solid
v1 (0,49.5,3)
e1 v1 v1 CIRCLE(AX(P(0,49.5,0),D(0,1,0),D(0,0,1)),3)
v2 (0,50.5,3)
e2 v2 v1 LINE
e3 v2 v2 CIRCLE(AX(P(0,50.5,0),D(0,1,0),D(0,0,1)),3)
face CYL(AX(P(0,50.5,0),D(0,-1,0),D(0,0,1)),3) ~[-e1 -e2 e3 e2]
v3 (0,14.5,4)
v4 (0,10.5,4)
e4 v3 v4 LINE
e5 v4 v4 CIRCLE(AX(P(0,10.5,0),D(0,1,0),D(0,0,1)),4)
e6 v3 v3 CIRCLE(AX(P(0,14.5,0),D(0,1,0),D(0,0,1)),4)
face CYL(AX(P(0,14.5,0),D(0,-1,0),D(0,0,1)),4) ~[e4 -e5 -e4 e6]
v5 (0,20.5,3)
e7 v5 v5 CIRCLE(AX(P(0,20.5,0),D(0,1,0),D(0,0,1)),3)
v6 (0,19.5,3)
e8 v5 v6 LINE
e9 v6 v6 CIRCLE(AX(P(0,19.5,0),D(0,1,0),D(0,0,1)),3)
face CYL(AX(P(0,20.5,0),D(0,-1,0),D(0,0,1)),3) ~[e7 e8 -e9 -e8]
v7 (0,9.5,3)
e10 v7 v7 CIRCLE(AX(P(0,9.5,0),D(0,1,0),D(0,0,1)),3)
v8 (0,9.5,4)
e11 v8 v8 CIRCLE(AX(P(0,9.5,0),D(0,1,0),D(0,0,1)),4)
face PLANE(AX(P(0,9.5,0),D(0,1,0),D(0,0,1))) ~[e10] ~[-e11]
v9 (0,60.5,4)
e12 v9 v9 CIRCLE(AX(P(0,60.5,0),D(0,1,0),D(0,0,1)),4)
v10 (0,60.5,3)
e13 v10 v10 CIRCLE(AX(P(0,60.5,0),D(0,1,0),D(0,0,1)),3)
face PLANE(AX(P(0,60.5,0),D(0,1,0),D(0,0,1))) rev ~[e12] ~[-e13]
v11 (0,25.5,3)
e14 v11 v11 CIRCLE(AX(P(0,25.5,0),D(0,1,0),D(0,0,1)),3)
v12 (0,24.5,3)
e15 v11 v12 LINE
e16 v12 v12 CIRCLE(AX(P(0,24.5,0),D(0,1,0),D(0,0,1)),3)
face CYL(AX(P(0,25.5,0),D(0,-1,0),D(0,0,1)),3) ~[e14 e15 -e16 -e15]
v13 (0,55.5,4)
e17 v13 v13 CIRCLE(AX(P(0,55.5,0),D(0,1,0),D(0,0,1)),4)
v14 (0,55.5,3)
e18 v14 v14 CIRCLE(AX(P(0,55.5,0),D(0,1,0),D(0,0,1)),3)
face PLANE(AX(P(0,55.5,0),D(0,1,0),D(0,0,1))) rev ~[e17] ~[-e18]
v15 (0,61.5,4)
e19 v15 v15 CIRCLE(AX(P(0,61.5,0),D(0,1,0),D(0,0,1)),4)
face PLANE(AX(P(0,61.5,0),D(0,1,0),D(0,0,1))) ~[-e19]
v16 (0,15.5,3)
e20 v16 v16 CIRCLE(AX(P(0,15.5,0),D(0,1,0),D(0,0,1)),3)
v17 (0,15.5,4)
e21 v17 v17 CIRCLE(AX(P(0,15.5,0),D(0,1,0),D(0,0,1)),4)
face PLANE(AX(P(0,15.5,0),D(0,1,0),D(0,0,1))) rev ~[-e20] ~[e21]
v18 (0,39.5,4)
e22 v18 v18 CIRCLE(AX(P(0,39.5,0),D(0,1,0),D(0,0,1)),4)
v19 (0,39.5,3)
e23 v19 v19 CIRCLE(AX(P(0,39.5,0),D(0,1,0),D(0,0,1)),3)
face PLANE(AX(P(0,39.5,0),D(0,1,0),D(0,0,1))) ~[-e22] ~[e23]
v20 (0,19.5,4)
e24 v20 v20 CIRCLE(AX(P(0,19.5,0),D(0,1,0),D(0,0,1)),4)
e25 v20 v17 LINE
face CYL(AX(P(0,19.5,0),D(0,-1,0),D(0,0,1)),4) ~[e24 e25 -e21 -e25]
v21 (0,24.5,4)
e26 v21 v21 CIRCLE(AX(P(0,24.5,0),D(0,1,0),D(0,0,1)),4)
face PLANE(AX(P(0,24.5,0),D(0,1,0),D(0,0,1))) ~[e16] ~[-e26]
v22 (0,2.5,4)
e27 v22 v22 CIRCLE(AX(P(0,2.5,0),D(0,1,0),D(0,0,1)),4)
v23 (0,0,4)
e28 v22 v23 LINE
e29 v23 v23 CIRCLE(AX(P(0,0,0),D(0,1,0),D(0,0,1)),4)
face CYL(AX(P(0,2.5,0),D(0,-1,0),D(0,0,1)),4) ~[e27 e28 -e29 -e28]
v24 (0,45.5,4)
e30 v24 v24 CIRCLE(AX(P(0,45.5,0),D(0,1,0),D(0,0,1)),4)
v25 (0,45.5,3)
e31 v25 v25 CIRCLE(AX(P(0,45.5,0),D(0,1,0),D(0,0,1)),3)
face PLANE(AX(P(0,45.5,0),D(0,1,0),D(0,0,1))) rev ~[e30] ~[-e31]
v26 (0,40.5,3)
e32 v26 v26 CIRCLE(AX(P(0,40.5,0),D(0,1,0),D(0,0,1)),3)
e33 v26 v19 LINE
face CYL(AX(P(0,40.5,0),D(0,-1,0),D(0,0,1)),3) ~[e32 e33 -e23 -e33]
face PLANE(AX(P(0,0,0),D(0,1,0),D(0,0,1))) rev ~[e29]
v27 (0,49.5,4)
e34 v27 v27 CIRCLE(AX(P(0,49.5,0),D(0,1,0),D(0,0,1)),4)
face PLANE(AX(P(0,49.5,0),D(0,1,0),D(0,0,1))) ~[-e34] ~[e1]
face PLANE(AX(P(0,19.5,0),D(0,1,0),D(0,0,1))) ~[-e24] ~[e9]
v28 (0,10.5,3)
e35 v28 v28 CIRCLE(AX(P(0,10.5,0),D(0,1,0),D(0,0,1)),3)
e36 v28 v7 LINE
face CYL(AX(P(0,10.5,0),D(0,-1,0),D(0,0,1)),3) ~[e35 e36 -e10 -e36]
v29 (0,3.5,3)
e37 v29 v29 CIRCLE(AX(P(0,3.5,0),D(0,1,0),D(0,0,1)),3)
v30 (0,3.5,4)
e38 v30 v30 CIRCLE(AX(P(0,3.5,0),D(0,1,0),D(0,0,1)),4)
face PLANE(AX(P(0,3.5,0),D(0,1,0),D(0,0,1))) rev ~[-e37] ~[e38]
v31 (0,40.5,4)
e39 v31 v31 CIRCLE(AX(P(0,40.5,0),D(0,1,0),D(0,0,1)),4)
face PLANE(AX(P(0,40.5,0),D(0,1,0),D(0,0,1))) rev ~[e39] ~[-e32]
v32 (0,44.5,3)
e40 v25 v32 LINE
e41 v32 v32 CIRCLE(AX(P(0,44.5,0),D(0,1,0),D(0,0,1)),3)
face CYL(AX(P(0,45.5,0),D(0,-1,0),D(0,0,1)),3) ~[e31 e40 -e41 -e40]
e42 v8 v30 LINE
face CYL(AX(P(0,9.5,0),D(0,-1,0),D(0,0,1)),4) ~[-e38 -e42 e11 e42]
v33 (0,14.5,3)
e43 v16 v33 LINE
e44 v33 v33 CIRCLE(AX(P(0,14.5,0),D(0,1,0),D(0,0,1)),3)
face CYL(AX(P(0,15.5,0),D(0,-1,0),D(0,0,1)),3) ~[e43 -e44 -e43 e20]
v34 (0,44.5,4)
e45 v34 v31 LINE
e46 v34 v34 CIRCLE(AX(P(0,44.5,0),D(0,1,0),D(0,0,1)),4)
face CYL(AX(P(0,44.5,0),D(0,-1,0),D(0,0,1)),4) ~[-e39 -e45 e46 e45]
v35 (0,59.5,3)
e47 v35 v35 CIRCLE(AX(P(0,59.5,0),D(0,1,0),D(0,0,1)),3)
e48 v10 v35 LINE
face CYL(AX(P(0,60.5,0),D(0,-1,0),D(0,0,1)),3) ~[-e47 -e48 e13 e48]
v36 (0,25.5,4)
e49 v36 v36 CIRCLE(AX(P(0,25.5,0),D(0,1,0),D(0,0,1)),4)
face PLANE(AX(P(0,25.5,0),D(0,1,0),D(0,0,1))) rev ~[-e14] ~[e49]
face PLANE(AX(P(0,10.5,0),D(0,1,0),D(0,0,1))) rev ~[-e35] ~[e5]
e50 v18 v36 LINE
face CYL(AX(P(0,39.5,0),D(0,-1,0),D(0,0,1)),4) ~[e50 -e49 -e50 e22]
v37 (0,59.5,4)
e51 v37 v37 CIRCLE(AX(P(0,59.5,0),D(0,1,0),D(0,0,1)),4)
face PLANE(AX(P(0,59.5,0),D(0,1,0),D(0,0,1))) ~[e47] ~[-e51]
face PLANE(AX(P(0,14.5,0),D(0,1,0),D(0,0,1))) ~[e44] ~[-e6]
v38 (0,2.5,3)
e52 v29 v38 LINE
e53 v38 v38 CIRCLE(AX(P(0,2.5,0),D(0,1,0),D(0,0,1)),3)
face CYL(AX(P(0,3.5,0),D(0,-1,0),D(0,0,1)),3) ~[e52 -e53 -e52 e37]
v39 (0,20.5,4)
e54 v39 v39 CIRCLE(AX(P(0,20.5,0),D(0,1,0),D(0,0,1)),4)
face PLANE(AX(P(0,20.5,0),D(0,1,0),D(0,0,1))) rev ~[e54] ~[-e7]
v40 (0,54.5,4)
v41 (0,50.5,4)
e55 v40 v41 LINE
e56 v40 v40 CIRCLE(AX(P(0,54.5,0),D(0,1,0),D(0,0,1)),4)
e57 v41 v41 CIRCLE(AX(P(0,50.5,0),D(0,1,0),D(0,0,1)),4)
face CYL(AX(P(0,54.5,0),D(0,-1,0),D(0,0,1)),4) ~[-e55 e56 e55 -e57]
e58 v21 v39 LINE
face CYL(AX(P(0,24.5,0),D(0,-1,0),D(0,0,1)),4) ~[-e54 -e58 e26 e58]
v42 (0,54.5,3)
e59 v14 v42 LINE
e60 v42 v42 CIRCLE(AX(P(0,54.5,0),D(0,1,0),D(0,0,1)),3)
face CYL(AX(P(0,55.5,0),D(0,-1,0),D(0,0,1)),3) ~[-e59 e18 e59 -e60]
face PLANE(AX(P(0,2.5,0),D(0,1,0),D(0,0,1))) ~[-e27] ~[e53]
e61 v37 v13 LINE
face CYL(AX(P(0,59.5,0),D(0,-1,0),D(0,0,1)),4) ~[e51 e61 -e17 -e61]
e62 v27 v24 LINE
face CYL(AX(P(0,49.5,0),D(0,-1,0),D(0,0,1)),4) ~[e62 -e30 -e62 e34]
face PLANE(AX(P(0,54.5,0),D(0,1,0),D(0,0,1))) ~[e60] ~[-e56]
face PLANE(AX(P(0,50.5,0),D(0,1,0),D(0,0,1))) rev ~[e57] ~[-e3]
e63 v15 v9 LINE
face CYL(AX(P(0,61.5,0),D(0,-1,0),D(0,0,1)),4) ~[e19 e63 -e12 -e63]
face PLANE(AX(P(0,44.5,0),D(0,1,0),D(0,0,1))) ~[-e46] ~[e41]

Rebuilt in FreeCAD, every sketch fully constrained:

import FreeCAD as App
import Part
import Sketcher

doc = App.newDocument("Part")
params = doc.addObject("Spreadsheet::Sheet", "Params")
for row, (alias, value) in enumerate([
    ("sketch1_width", "1 mm"),
    ("sketch1_width2", "4 mm"),
    ("sketch1_width3", "14 mm"),
    ("sketch1_width4", "6 mm"),
    ("sketch1_width5", "61.5 mm"),
    ("revolution_angle", "360 deg"),
], start=1):
    params.set(f"A{row}", alias)
    params.set(f"B{row}", "=" + value)
    params.setAlias(f"B{row}", alias)

body = doc.addObject("PartDesign::Body", "Body")

sketch1 = doc.addObject("Sketcher::SketchObject", "Sketch")
body.addObject(sketch1)
sketch1.AttachmentSupport = (doc.YZ_Plane, [""])
sketch1.MapMode = "FlatFace"
sketch1.addGeometry(Part.LineSegment(App.Vector(0, 4, 0), App.Vector(0, 0, 0)), False)
sketch1.addGeometry(Part.LineSegment(App.Vector(0, 0, 0), App.Vector(61.5, 0, 0)), False)
sketch1.addGeometry(Part.LineSegment(App.Vector(61.5, 0, 0), App.Vector(61.5, 4, 0)), False)
sketch1.addGeometry(Part.LineSegment(App.Vector(61.5, 4, 0), App.Vector(60.5, 4, 0)), False)
sketch1.addGeometry(Part.LineSegment(App.Vector(60.5, 4, 0), App.Vector(60.5, 3, 0)), False)
sketch1.addGeometry(Part.LineSegment(App.Vector(60.5, 3, 0), App.Vector(59.5, 3, 0)), False)
sketch1.addGeometry(Part.LineSegment(App.Vector(59.5, 3, 0), App.Vector(59.5, 4, 0)), False)
sketch1.addGeometry(Part.LineSegment(App.Vector(59.5, 4, 0), App.Vector(55.5, 4, 0)), False)
sketch1.addGeometry(Part.LineSegment(App.Vector(55.5, 4, 0), App.Vector(55.5, 3, 0)), False)
sketch1.addGeometry(Part.LineSegment(App.Vector(55.5, 3, 0), App.Vector(54.5, 3, 0)), False)
sketch1.addGeometry(Part.LineSegment(App.Vector(54.5, 3, 0), App.Vector(54.5, 4, 0)), False)
sketch1.addGeometry(Part.LineSegment(App.Vector(54.5, 4, 0), App.Vector(50.5, 4, 0)), False)
sketch1.addGeometry(Part.LineSegment(App.Vector(50.5, 4, 0), App.Vector(50.5, 3, 0)), False)
sketch1.addGeometry(Part.LineSegment(App.Vector(50.5, 3, 0), App.Vector(49.5, 3, 0)), False)
sketch1.addGeometry(Part.LineSegment(App.Vector(49.5, 3, 0), App.Vector(49.5, 4, 0)), False)
sketch1.addGeometry(Part.LineSegment(App.Vector(49.5, 4, 0), App.Vector(45.5, 4, 0)), False)
sketch1.addGeometry(Part.LineSegment(App.Vector(45.5, 4, 0), App.Vector(45.5, 3, 0)), False)
sketch1.addGeometry(Part.LineSegment(App.Vector(45.5, 3, 0), App.Vector(44.5, 3, 0)), False)
sketch1.addGeometry(Part.LineSegment(App.Vector(44.5, 3, 0), App.Vector(44.5, 4, 0)), False)
sketch1.addGeometry(Part.LineSegment(App.Vector(44.5, 4, 0), App.Vector(40.5, 4, 0)), False)
sketch1.addGeometry(Part.LineSegment(App.Vector(40.5, 4, 0), App.Vector(40.5, 3, 0)), False)
sketch1.addGeometry(Part.LineSegment(App.Vector(40.5, 3, 0), App.Vector(39.5, 3, 0)), False)
sketch1.addGeometry(Part.LineSegment(App.Vector(39.5, 3, 0), App.Vector(39.5, 4, 0)), False)
sketch1.addGeometry(Part.LineSegment(App.Vector(39.5, 4, 0), App.Vector(25.5, 4, 0)), False)
sketch1.addGeometry(Part.LineSegment(App.Vector(25.5, 4, 0), App.Vector(25.5, 3, 0)), False)
sketch1.addGeometry(Part.LineSegment(App.Vector(25.5, 3, 0), App.Vector(24.5, 3, 0)), False)
sketch1.addGeometry(Part.LineSegment(App.Vector(24.5, 3, 0), App.Vector(24.5, 4, 0)), False)
sketch1.addGeometry(Part.LineSegment(App.Vector(24.5, 4, 0), App.Vector(20.5, 4, 0)), False)
sketch1.addGeometry(Part.LineSegment(App.Vector(20.5, 4, 0), App.Vector(20.5, 3, 0)), False)
sketch1.addGeometry(Part.LineSegment(App.Vector(20.5, 3, 0), App.Vector(19.5, 3, 0)), False)
sketch1.addGeometry(Part.LineSegment(App.Vector(19.5, 3, 0), App.Vector(19.5, 4, 0)), False)
sketch1.addGeometry(Part.LineSegment(App.Vector(19.5, 4, 0), App.Vector(15.5, 4, 0)), False)
sketch1.addGeometry(Part.LineSegment(App.Vector(15.5, 4, 0), App.Vector(15.5, 3, 0)), False)
sketch1.addGeometry(Part.LineSegment(App.Vector(15.5, 3, 0), App.Vector(14.5, 3, 0)), False)
sketch1.addGeometry(Part.LineSegment(App.Vector(14.5, 3, 0), App.Vector(14.5, 4, 0)), False)
sketch1.addGeometry(Part.LineSegment(App.Vector(14.5, 4, 0), App.Vector(10.5, 4, 0)), False)
sketch1.addGeometry(Part.LineSegment(App.Vector(10.5, 4, 0), App.Vector(10.5, 3, 0)), False)
sketch1.addGeometry(Part.LineSegment(App.Vector(10.5, 3, 0), App.Vector(9.5, 3, 0)), False)
sketch1.addGeometry(Part.LineSegment(App.Vector(9.5, 3, 0), App.Vector(9.5, 4, 0)), False)
sketch1.addGeometry(Part.LineSegment(App.Vector(9.5, 4, 0), App.Vector(3.5, 4, 0)), False)
sketch1.addGeometry(Part.LineSegment(App.Vector(3.5, 4, 0), App.Vector(3.5, 3, 0)), False)
sketch1.addGeometry(Part.LineSegment(App.Vector(3.5, 3, 0), App.Vector(2.5, 3, 0)), False)
sketch1.addGeometry(Part.LineSegment(App.Vector(2.5, 3, 0), App.Vector(2.5, 4, 0)), False)
sketch1.addGeometry(Part.LineSegment(App.Vector(2.5, 4, 0), App.Vector(0, 4, 0)), False)
sketch1.addConstraint(Sketcher.Constraint("Coincident", 0, 2, 1, 1))
sketch1.addConstraint(Sketcher.Constraint("Coincident", 1, 2, 2, 1))
sketch1.addConstraint(Sketcher.Constraint("Coincident", 2, 2, 3, 1))
sketch1.addConstraint(Sketcher.Constraint("Coincident", 3, 2, 4, 1))
sketch1.addConstraint(Sketcher.Constraint("Coincident", 4, 2, 5, 1))
sketch1.addConstraint(Sketcher.Constraint("Coincident", 5, 2, 6, 1))
sketch1.addConstraint(Sketcher.Constraint("Coincident", 6, 2, 7, 1))
sketch1.addConstraint(Sketcher.Constraint("Coincident", 7, 2, 8, 1))
sketch1.addConstraint(Sketcher.Constraint("Coincident", 8, 2, 9, 1))
sketch1.addConstraint(Sketcher.Constraint("Coincident", 9, 2, 10, 1))
sketch1.addConstraint(Sketcher.Constraint("Coincident", 10, 2, 11, 1))
sketch1.addConstraint(Sketcher.Constraint("Coincident", 11, 2, 12, 1))
sketch1.addConstraint(Sketcher.Constraint("Coincident", 12, 2, 13, 1))
sketch1.addConstraint(Sketcher.Constraint("Coincident", 13, 2, 14, 1))
sketch1.addConstraint(Sketcher.Constraint("Coincident", 14, 2, 15, 1))
sketch1.addConstraint(Sketcher.Constraint("Coincident", 15, 2, 16, 1))
sketch1.addConstraint(Sketcher.Constraint("Coincident", 16, 2, 17, 1))
sketch1.addConstraint(Sketcher.Constraint("Coincident", 17, 2, 18, 1))
sketch1.addConstraint(Sketcher.Constraint("Coincident", 18, 2, 19, 1))
sketch1.addConstraint(Sketcher.Constraint("Coincident", 19, 2, 20, 1))
sketch1.addConstraint(Sketcher.Constraint("Coincident", 20, 2, 21, 1))
sketch1.addConstraint(Sketcher.Constraint("Coincident", 21, 2, 22, 1))
sketch1.addConstraint(Sketcher.Constraint("Coincident", 22, 2, 23, 1))
sketch1.addConstraint(Sketcher.Constraint("Coincident", 23, 2, 24, 1))
sketch1.addConstraint(Sketcher.Constraint("Coincident", 24, 2, 25, 1))
sketch1.addConstraint(Sketcher.Constraint("Coincident", 25, 2, 26, 1))
sketch1.addConstraint(Sketcher.Constraint("Coincident", 26, 2, 27, 1))
sketch1.addConstraint(Sketcher.Constraint("Coincident", 27, 2, 28, 1))
sketch1.addConstraint(Sketcher.Constraint("Coincident", 28, 2, 29, 1))
sketch1.addConstraint(Sketcher.Constraint("Coincident", 29, 2, 30, 1))
sketch1.addConstraint(Sketcher.Constraint("Coincident", 30, 2, 31, 1))
sketch1.addConstraint(Sketcher.Constraint("Coincident", 31, 2, 32, 1))
sketch1.addConstraint(Sketcher.Constraint("Coincident", 32, 2, 33, 1))
sketch1.addConstraint(Sketcher.Constraint("Coincident", 33, 2, 34, 1))
sketch1.addConstraint(Sketcher.Constraint("Coincident", 34, 2, 35, 1))
sketch1.addConstraint(Sketcher.Constraint("Coincident", 35, 2, 36, 1))
sketch1.addConstraint(Sketcher.Constraint("Coincident", 36, 2, 37, 1))
sketch1.addConstraint(Sketcher.Constraint("Coincident", 37, 2, 38, 1))
sketch1.addConstraint(Sketcher.Constraint("Coincident", 38, 2, 39, 1))
sketch1.addConstraint(Sketcher.Constraint("Coincident", 39, 2, 40, 1))
sketch1.addConstraint(Sketcher.Constraint("Coincident", 40, 2, 41, 1))
sketch1.addConstraint(Sketcher.Constraint("Coincident", 41, 2, 42, 1))
sketch1.addConstraint(Sketcher.Constraint("Coincident", 42, 2, 43, 1))
sketch1.addConstraint(Sketcher.Constraint("Coincident", 43, 2, 0, 1))
sketch1.addConstraint(Sketcher.Constraint("Vertical", 0))
sketch1.addConstraint(Sketcher.Constraint("Horizontal", 1))
sketch1.addConstraint(Sketcher.Constraint("Vertical", 2))
sketch1.addConstraint(Sketcher.Constraint("Horizontal", 3))
sketch1.addConstraint(Sketcher.Constraint("Vertical", 4))
sketch1.addConstraint(Sketcher.Constraint("Horizontal", 5))
sketch1.addConstraint(Sketcher.Constraint("Vertical", 6))
sketch1.addConstraint(Sketcher.Constraint("Horizontal", 7))
sketch1.addConstraint(Sketcher.Constraint("Vertical", 8))
sketch1.addConstraint(Sketcher.Constraint("Horizontal", 9))
sketch1.addConstraint(Sketcher.Constraint("Vertical", 10))
sketch1.addConstraint(Sketcher.Constraint("Horizontal", 11))
sketch1.addConstraint(Sketcher.Constraint("Vertical", 12))
sketch1.addConstraint(Sketcher.Constraint("Horizontal", 13))
sketch1.addConstraint(Sketcher.Constraint("Vertical", 14))
sketch1.addConstraint(Sketcher.Constraint("Horizontal", 15))
sketch1.addConstraint(Sketcher.Constraint("Vertical", 16))
sketch1.addConstraint(Sketcher.Constraint("Horizontal", 17))
sketch1.addConstraint(Sketcher.Constraint("Vertical", 18))
sketch1.addConstraint(Sketcher.Constraint("Horizontal", 19))
sketch1.addConstraint(Sketcher.Constraint("Vertical", 20))
sketch1.addConstraint(Sketcher.Constraint("Horizontal", 21))
sketch1.addConstraint(Sketcher.Constraint("Vertical", 22))
sketch1.addConstraint(Sketcher.Constraint("Horizontal", 23))
sketch1.addConstraint(Sketcher.Constraint("Vertical", 24))
sketch1.addConstraint(Sketcher.Constraint("Horizontal", 25))
sketch1.addConstraint(Sketcher.Constraint("Vertical", 26))
sketch1.addConstraint(Sketcher.Constraint("Horizontal", 27))
sketch1.addConstraint(Sketcher.Constraint("Vertical", 28))
sketch1.addConstraint(Sketcher.Constraint("Horizontal", 29))
sketch1.addConstraint(Sketcher.Constraint("Vertical", 30))
sketch1.addConstraint(Sketcher.Constraint("Horizontal", 31))
sketch1.addConstraint(Sketcher.Constraint("Vertical", 32))
sketch1.addConstraint(Sketcher.Constraint("Horizontal", 33))
sketch1.addConstraint(Sketcher.Constraint("Vertical", 34))
sketch1.addConstraint(Sketcher.Constraint("Horizontal", 35))
sketch1.addConstraint(Sketcher.Constraint("Vertical", 36))
sketch1.addConstraint(Sketcher.Constraint("Horizontal", 37))
sketch1.addConstraint(Sketcher.Constraint("Vertical", 38))
sketch1.addConstraint(Sketcher.Constraint("Horizontal", 39))
sketch1.addConstraint(Sketcher.Constraint("Vertical", 40))
sketch1.addConstraint(Sketcher.Constraint("Horizontal", 41))
sketch1.addConstraint(Sketcher.Constraint("Vertical", 42))
sketch1.addConstraint(Sketcher.Constraint("Horizontal", 43))
sketch1.addConstraint(Sketcher.Constraint("Coincident", 0, 2, -1, 1))
sketch1.addConstraint(Sketcher.Constraint("Horizontal", 3, 2, 6, 2))
sketch1.addConstraint(Sketcher.Constraint("Horizontal", 5, 2, 8, 2))
sketch1.addConstraint(Sketcher.Constraint("Horizontal", 7, 2, 10, 2))
sketch1.addConstraint(Sketcher.Constraint("Horizontal", 9, 2, 12, 2))
sketch1.addConstraint(Sketcher.Constraint("Horizontal", 11, 2, 14, 2))
sketch1.addConstraint(Sketcher.Constraint("Horizontal", 13, 2, 16, 2))
sketch1.addConstraint(Sketcher.Constraint("Horizontal", 15, 2, 18, 2))
sketch1.addConstraint(Sketcher.Constraint("Horizontal", 17, 2, 20, 2))
sketch1.addConstraint(Sketcher.Constraint("Horizontal", 19, 2, 22, 2))
sketch1.addConstraint(Sketcher.Constraint("Horizontal", 21, 2, 24, 2))
sketch1.addConstraint(Sketcher.Constraint("Horizontal", 23, 2, 26, 2))
sketch1.addConstraint(Sketcher.Constraint("Horizontal", 25, 2, 28, 2))
sketch1.addConstraint(Sketcher.Constraint("Horizontal", 27, 2, 30, 2))
sketch1.addConstraint(Sketcher.Constraint("Horizontal", 29, 2, 32, 2))
sketch1.addConstraint(Sketcher.Constraint("Horizontal", 31, 2, 34, 2))
sketch1.addConstraint(Sketcher.Constraint("Horizontal", 33, 2, 36, 2))
sketch1.addConstraint(Sketcher.Constraint("Horizontal", 35, 2, 38, 2))
sketch1.addConstraint(Sketcher.Constraint("Horizontal", 37, 2, 40, 2))
sketch1.addConstraint(Sketcher.Constraint("Horizontal", 39, 2, 42, 2))
sketch1.addConstraint(Sketcher.Constraint("Equal", 3, 5))
sketch1.addConstraint(Sketcher.Constraint("Equal", 5, 9))
sketch1.addConstraint(Sketcher.Constraint("Equal", 7, 11))
sketch1.addConstraint(Sketcher.Constraint("Equal", 9, 13))
sketch1.addConstraint(Sketcher.Constraint("Equal", 11, 15))
sketch1.addConstraint(Sketcher.Constraint("Equal", 13, 17))
sketch1.addConstraint(Sketcher.Constraint("Equal", 15, 19))
sketch1.addConstraint(Sketcher.Constraint("Equal", 17, 21))
sketch1.addConstraint(Sketcher.Constraint("Equal", 21, 25))
sketch1.addConstraint(Sketcher.Constraint("Equal", 19, 27))
sketch1.addConstraint(Sketcher.Constraint("Equal", 25, 29))
sketch1.addConstraint(Sketcher.Constraint("Equal", 27, 31))
sketch1.addConstraint(Sketcher.Constraint("Equal", 29, 33))
sketch1.addConstraint(Sketcher.Constraint("Equal", 31, 35))
sketch1.addConstraint(Sketcher.Constraint("Equal", 33, 37))
sketch1.addConstraint(Sketcher.Constraint("Equal", 37, 41))
sketch1.addConstraint(Sketcher.Constraint("Equal", 35, 0))
sketch1.addConstraint(Sketcher.Constraint("Equal", 41, 4))
sketch1.addConstraint(Sketcher.Constraint("DistanceX", 3, 2, 3, 1, 1.0))
sketch1.addConstraint(Sketcher.Constraint("DistanceX", 7, 2, 7, 1, 4.0))
sketch1.addConstraint(Sketcher.Constraint("DistanceX", 23, 2, 23, 1, 14.0))
sketch1.addConstraint(Sketcher.Constraint("DistanceX", 39, 2, 39, 1, 6.0))
sketch1.addConstraint(Sketcher.Constraint("DistanceX", 1, 1, 1, 2, 61.5))
sketch1.setExpression("Constraints[126]", "Params.sketch1_width")
sketch1.setExpression("Constraints[127]", "Params.sketch1_width2")
sketch1.setExpression("Constraints[128]", "Params.sketch1_width3")
sketch1.setExpression("Constraints[129]", "Params.sketch1_width4")
sketch1.setExpression("Constraints[130]", "Params.sketch1_width5")
revolution = doc.addObject("PartDesign::Revolution", "Revolution")
body.addObject(revolution)
revolution.Profile = sketch1
revolution.ReferenceAxis = (sketch1, ["H_Axis"])
revolution.setExpression("Angle", "Params.revolution_angle")

doc.recompute()
